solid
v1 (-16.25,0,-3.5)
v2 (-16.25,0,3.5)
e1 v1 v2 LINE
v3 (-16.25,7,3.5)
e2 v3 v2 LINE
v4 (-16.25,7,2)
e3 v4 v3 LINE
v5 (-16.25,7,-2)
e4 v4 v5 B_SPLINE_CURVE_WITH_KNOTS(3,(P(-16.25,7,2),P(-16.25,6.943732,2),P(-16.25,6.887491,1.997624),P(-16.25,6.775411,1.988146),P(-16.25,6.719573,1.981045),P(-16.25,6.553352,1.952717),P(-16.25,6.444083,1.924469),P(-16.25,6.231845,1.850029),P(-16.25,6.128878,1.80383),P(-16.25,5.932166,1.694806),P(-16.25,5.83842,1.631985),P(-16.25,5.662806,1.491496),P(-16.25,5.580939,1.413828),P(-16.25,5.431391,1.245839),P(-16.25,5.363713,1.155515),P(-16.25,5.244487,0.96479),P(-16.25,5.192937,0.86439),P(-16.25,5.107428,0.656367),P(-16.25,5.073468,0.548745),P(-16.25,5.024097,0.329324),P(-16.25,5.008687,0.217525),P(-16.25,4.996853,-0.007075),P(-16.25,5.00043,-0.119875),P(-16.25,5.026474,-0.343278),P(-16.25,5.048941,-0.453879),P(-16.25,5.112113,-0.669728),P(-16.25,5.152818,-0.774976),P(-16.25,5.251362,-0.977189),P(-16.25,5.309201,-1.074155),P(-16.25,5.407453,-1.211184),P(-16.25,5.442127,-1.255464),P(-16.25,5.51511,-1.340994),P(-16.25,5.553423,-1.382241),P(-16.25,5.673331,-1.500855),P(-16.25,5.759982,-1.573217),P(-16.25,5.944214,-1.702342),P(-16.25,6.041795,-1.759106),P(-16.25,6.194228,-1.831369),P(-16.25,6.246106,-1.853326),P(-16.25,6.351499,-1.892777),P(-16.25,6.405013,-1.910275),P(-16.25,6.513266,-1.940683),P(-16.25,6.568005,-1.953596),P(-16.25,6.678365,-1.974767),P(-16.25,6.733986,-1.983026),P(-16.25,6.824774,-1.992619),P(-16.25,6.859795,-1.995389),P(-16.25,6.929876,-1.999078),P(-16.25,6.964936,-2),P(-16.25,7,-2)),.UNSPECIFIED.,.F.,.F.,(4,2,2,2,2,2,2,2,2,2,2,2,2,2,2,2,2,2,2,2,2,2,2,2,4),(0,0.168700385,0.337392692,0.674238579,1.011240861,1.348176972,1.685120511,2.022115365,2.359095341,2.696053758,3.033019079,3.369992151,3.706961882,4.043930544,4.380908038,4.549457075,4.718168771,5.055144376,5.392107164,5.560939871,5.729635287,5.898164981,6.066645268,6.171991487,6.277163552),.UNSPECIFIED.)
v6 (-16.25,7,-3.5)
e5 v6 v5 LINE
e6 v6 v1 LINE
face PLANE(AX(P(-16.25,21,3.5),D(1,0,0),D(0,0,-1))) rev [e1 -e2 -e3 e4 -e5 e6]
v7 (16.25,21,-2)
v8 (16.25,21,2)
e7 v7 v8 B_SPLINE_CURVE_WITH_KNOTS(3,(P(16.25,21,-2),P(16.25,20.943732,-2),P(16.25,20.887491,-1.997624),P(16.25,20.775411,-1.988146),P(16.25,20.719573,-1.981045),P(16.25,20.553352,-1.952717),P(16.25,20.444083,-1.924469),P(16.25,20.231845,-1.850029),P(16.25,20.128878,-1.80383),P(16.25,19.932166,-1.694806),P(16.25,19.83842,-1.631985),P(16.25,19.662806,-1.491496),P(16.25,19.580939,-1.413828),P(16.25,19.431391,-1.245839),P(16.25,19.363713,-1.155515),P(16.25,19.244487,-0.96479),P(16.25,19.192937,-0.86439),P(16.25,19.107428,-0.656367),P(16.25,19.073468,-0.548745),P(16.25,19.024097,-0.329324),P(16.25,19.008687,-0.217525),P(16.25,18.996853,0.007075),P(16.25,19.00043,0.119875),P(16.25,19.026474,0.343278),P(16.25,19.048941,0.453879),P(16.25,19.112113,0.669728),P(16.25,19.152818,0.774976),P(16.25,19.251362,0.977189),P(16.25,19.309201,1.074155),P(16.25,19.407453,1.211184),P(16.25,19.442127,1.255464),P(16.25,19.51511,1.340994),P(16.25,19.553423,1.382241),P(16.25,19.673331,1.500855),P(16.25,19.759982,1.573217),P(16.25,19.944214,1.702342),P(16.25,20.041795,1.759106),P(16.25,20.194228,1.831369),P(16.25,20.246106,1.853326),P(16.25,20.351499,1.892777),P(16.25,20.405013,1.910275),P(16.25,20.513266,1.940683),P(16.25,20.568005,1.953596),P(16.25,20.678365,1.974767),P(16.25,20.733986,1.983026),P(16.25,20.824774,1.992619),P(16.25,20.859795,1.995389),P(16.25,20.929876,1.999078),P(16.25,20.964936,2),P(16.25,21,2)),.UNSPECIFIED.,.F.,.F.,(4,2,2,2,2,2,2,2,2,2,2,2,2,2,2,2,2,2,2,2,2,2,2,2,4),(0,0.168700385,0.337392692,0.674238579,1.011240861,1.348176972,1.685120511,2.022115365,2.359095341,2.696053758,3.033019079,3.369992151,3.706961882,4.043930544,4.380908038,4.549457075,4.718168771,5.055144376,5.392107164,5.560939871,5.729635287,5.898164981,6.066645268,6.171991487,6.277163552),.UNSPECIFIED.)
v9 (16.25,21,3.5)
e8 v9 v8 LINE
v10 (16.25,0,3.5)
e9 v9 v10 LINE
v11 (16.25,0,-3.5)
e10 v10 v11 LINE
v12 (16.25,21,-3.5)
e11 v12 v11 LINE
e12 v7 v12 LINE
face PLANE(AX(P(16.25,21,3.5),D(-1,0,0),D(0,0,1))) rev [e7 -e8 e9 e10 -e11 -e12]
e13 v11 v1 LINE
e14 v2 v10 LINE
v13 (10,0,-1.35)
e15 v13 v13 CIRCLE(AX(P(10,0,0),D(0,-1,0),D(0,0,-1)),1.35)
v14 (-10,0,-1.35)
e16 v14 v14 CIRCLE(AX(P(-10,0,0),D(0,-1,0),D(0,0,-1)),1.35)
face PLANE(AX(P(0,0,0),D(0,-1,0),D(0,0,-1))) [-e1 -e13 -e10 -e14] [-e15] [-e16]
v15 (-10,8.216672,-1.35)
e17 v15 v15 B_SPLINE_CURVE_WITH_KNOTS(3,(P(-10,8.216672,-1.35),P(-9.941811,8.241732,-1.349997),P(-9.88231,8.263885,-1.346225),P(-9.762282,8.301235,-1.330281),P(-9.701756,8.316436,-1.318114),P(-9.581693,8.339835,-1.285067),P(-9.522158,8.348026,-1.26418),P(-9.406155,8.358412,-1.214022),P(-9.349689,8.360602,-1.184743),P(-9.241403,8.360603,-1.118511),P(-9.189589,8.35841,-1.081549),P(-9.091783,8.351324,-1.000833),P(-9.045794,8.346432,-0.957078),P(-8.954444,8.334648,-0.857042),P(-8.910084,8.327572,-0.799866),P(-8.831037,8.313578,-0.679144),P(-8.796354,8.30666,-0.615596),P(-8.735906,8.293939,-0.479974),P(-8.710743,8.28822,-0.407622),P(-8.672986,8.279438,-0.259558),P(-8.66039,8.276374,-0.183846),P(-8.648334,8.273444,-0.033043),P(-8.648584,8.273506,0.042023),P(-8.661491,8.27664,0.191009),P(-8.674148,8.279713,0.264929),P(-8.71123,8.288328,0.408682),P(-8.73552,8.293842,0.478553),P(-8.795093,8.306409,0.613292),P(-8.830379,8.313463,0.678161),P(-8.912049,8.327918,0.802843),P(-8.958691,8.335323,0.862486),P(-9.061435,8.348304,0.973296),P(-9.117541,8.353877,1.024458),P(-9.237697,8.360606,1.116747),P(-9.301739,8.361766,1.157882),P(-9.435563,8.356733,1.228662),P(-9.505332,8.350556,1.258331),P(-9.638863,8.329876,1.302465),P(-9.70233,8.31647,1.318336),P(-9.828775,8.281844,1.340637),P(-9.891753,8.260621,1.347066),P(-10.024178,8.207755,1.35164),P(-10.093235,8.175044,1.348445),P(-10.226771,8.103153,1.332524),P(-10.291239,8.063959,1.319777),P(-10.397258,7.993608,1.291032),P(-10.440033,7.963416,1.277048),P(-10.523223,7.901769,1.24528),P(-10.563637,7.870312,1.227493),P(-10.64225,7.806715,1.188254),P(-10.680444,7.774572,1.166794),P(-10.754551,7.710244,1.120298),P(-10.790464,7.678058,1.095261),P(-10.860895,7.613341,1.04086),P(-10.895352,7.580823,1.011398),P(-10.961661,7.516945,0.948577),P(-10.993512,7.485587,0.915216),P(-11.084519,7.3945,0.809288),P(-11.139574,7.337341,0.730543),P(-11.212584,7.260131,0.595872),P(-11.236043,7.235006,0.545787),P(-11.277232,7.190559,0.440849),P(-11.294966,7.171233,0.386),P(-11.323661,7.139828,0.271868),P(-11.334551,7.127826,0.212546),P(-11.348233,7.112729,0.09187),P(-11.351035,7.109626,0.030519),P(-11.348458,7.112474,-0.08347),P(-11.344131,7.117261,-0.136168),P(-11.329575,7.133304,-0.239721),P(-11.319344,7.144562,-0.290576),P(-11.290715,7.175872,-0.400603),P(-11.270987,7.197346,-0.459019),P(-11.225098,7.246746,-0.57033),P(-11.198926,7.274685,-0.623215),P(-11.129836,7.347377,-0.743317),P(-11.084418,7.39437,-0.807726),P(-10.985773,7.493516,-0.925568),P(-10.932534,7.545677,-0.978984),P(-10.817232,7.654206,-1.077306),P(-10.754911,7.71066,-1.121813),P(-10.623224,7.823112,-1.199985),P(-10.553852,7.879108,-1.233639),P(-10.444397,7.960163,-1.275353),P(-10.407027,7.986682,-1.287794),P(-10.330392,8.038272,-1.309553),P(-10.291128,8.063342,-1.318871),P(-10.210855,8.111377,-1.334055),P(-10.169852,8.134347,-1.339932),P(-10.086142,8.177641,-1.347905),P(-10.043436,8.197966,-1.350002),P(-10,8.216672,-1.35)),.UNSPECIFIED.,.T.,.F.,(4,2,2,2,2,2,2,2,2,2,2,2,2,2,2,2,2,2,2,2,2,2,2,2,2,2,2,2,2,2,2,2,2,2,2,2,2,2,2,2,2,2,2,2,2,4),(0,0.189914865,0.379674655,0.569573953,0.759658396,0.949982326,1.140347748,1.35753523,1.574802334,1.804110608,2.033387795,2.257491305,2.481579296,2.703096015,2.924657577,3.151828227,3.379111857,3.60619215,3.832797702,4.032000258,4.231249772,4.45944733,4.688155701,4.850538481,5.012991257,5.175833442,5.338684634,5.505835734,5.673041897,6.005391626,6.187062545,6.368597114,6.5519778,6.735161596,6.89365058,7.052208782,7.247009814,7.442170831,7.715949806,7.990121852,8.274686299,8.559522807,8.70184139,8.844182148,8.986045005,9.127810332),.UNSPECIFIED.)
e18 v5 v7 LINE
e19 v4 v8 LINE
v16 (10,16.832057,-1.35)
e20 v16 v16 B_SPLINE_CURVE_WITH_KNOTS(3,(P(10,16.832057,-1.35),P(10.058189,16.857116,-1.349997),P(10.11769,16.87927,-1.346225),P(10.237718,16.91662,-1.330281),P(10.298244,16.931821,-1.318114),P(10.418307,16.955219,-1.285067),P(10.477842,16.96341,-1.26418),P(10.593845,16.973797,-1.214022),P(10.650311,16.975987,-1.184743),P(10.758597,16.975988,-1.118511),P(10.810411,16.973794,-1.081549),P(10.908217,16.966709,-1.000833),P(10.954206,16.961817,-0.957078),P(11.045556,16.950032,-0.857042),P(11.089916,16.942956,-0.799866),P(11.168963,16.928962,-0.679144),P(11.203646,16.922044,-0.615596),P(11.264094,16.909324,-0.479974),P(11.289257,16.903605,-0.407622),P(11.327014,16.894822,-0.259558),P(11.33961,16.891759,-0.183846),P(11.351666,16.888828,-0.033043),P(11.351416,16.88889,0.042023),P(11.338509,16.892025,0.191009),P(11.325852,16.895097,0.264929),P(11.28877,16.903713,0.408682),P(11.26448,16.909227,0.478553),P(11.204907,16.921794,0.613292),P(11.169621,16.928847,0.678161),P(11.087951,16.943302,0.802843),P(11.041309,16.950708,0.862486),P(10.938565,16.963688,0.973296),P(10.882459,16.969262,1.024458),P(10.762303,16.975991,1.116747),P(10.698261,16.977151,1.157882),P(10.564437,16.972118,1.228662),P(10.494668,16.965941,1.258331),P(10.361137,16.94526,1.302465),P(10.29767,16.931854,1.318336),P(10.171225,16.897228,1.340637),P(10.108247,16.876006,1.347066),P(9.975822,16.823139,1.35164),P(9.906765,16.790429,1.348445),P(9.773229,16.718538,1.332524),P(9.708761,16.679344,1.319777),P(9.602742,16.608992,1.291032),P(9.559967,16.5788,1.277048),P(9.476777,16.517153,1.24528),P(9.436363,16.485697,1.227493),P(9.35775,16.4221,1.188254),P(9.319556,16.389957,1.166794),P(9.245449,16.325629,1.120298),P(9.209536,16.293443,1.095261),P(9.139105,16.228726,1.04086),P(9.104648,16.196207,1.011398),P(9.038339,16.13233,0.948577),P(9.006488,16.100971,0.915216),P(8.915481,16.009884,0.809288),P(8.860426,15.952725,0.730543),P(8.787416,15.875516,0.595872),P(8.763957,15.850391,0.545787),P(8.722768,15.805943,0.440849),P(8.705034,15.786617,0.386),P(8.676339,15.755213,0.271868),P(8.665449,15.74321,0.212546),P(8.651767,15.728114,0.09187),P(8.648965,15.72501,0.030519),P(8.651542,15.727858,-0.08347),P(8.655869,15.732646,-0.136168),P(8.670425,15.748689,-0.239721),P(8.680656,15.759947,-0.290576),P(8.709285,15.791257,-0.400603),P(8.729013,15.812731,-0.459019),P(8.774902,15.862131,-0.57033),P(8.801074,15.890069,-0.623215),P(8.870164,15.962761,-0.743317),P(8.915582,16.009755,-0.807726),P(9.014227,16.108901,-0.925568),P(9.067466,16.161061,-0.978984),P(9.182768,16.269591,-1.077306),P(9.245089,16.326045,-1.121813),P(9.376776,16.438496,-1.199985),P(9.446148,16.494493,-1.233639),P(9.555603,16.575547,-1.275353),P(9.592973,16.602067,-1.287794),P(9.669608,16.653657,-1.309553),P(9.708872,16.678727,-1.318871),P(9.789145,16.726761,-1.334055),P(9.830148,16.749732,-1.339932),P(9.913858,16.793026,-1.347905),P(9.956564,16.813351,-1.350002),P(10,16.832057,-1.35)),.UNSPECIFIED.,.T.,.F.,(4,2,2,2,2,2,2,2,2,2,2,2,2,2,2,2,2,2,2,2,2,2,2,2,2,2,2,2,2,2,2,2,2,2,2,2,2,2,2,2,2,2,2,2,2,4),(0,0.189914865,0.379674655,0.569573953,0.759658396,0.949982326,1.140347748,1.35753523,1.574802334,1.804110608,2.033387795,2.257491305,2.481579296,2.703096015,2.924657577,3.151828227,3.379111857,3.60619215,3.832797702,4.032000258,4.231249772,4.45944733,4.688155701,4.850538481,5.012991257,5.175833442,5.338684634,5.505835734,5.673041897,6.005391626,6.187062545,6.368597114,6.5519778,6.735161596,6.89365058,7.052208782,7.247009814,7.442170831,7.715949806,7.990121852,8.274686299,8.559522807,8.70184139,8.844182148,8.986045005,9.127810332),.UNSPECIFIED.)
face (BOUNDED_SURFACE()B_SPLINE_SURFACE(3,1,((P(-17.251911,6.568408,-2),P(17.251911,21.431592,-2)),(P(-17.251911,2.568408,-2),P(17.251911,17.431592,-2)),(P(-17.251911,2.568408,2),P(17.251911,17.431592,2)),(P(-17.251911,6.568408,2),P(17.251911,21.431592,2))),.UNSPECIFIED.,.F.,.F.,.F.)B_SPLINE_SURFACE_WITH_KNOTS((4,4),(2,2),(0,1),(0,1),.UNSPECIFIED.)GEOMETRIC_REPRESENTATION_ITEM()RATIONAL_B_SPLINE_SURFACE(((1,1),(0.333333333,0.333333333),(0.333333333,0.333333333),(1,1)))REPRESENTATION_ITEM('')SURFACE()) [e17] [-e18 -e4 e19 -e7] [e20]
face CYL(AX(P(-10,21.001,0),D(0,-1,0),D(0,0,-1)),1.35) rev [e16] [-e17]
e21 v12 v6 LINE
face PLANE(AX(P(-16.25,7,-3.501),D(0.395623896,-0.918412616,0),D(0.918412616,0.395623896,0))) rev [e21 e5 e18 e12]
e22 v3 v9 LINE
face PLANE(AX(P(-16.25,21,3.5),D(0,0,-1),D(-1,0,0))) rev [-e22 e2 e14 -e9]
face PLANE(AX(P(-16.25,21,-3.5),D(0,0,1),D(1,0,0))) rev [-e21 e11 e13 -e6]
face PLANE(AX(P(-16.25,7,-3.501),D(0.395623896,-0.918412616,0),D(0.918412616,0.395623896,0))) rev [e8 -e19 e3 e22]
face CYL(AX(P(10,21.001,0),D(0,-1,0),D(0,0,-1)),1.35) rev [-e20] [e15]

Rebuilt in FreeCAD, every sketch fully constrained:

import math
import FreeCAD as App
import Part
import Sketcher
from FreeCAD import Vector

doc = App.newDocument("Part")
params = doc.addObject("Spreadsheet::Sheet", "Params")
for row, (alias, value) in enumerate([
    ("sketch1_height", "7 mm"),
    ("sketch1_width", "32.5 mm"),
    ("pad1_length", "21 mm"),
    ("sketch2_diameter", "2.7 mm"),
    ("sketch3_diameter", "2.7 mm"),
    ("sketch4_height", "14 mm"),
    ("sketch4_width", "32.5 mm"),
    ("sketch5_radius", "2 mm"),
], start=1):
    params.set(f"A{row}", alias)
    params.set(f"B{row}", "=" + value)
    params.setAlias(f"B{row}", alias)

body = doc.addObject("PartDesign::Body", "Body")

# Sketch on XZ plane
sketch1 = body.newObject("Sketcher::SketchObject", "Sketch")
sketch1.AttachmentSupport = (doc.getObject("XZ_Plane"), [""])
sketch1.MapMode = "FlatFace"
sketch1.addGeometry([
    Part.LineSegment(Vector(-16, -4, 0), Vector(-16, 4, 0)),
    Part.LineSegment(Vector(-16, 4, 0), Vector(16, 4, 0)),
    Part.LineSegment(Vector(16, 4, 0), Vector(16, -4, 0)),
    Part.LineSegment(Vector(16, -4, 0), Vector(-16, -4, 0)),
], False)
sketch1.addConstraint([
    Sketcher.Constraint("Coincident", 0, 2, 1, 1),
    Sketcher.Constraint("Coincident", 1, 2, 2, 1),
    Sketcher.Constraint("Coincident", 2, 2, 3, 1),
    Sketcher.Constraint("Coincident", 3, 2, 0, 1),
    Sketcher.Constraint("Vertical", 0),
    Sketcher.Constraint("Horizontal", 1),
    Sketcher.Constraint("Vertical", 2),
    Sketcher.Constraint("Horizontal", 3),
    Sketcher.Constraint("Symmetric", 0, 2, 2, 2, -1, 1),
    Sketcher.Constraint("DistanceY", 0, 1, 0, 2, 7.0),
    Sketcher.Constraint("DistanceX", 1, 1, 1, 2, 32.5),
])
sketch1.setExpression("Constraints[9]", "Params.sketch1_height")
sketch1.setExpression("Constraints[10]", "Params.sketch1_width")
pad1 = body.newObject("PartDesign::Pad", "Pad")
pad1.Profile = sketch1
pad1.setExpression("Length", "Params.pad1_length")
pad1.Reversed = True

# Sketch on XZ plane
sketch2 = body.newObject("Sketcher::SketchObject", "Sketch001")
sketch2.AttachmentSupport = (doc.getObject("XZ_Plane"), [""])
sketch2.MapMode = "FlatFace"
sketch2.addGeometry(Part.Circle(Vector(-10, 0, 0), Vector(0, 0, 1), 1.4), False)
sketch2.addConstraint([
    Sketcher.Constraint("PointOnObject", 0, 3, -1),
    Sketcher.Constraint("Diameter", 0, 2.7),
    Sketcher.Constraint("DistanceX", 0, 3, -1, 1, 10.0),
])
sketch2.setExpression("Constraints[1]", "Params.sketch2_diameter")
pocket1 = body.newObject("PartDesign::Pocket", "Pocket")
pocket1.Profile = sketch2
pocket1.Type = "UpToFirst"

# Sketch on XZ plane
sketch3 = body.newObject("Sketcher::SketchObject", "Sketch002")
sketch3.AttachmentSupport = (doc.getObject("XZ_Plane"), [""])
sketch3.MapMode = "FlatFace"
sketch3.addGeometry(Part.Circle(Vector(10, 0, 0), Vector(0, 0, 1), 1.4), False)
sketch3.addConstraint([
    Sketcher.Constraint("PointOnObject", 0, 3, -1),
    Sketcher.Constraint("Diameter", 0, 2.7),
    Sketcher.Constraint("DistanceX", -1, 1, 0, 3, 10.0),
])
sketch3.setExpression("Constraints[1]", "Params.sketch3_diameter")
pocket2 = body.newObject("PartDesign::Pocket", "Pocket001")
pocket2.Profile = sketch3
pocket2.Type = "UpToFirst"

# Sketch on XY plane
sketch4 = body.newObject("Sketcher::SketchObject", "Sketch003")
sketch4.AttachmentSupport = (doc.getObject("XY_Plane"), [""])
sketch4.MapMode = "FlatFace"
sketch4.AttachmentOffset = App.Placement(Vector(0, 0, 3.5), App.Rotation())
sketch4.addGeometry([
    Part.LineSegment(Vector(-16, 21, 0), Vector(-16, 7, 0)),
    Part.LineSegment(Vector(-16, 7, 0), Vector(16, 21, 0)),
    Part.LineSegment(Vector(16, 21, 0), Vector(-16, 21, 0)),
], False)
sketch4.addConstraint([
    Sketcher.Constraint("Coincident", 0, 2, 1, 1),
    Sketcher.Constraint("Coincident", 1, 2, 2, 1),
    Sketcher.Constraint("Coincident", 2, 2, 0, 1),
    Sketcher.Constraint("Vertical", 0),
    Sketcher.Constraint("Horizontal", 2),
    Sketcher.Constraint("DistanceY", 0, 2, 0, 1, 14.0),
    Sketcher.Constraint("DistanceX", 2, 2, 2, 1, 32.5),
    Sketcher.Constraint("DistanceY", -1, 1, 0, 2, 7.0),
    Sketcher.Constraint("DistanceX", 0, 2, -1, 1, 16.25),
])
sketch4.setExpression("Constraints[5]", "Params.sketch4_height")
sketch4.setExpression("Constraints[6]", "Params.sketch4_width")
pocket3 = body.newObject("PartDesign::Pocket", "Pocket002")
pocket3.Profile = sketch4
pocket3.Type = "UpToFirst"

# Sketch on YZ plane
sketch5 = body.newObject("Sketcher::SketchObject", "Sketch004")
sketch5.AttachmentSupport = (doc.getObject("YZ_Plane"), [""])
sketch5.MapMode = "FlatFace"
sketch5.AttachmentOffset = App.Placement(Vector(0, 0, -16.25), App.Rotation())
sketch5.addGeometry([
    Part.LineSegment(Vector(7, 2, 0), Vector(7, -2, 0)),
    Part.ArcOfCircle(Part.Circle(Vector(7, 0, 0), Vector(0, 0, 1), 2), math.radians(90), math.radians(270)),
], False)
sketch5.addConstraint([
    Sketcher.Constraint("Coincident", 0, 1, 1, 1),
    Sketcher.Constraint("Coincident", 1, 2, 0, 2),
    Sketcher.Constraint("Vertical", 0),
    Sketcher.Constraint("PointOnObject", 1, 3, -1),
    Sketcher.Constraint("Vertical", 1, 3, 0, 1),
    Sketcher.Constraint("Radius", 1, 2.0),
    Sketcher.Constraint("DistanceX", -1, 1, 1, 3, 7.0),
])
sketch5.setExpression("Constraints[5]", "Params.sketch5_radius")

# Sketch on an angled plane
sketch6 = body.newObject("Sketcher::SketchObject", "Sketch005")
sketch6.Placement = App.Placement(Vector(-5.086844, 11.808744, 0), App.Rotation(Vector(0.918412616, 0.395623896, 0), Vector(0, 0, 1), Vector(0.395623896, -0.918412616, 0), "ZXY"))
sketch6.addGeometry(Part.LineSegment(Vector(-12, 0, 0), Vector(23, 0, 0)), False)
sketch6.addConstraint([
    Sketcher.Constraint("Horizontal", 0),
    Sketcher.Constraint("PointOnObject", 0, 1, -1),
    Sketcher.Constraint("DistanceX", 0, 1, 0, 2, 35.387145),
    Sketcher.Constraint("DistanceX", 0, 1, -1, 1, 12.154838),
])
doc.recompute()

subtractivepipe = body.newObject("PartDesign::SubtractivePipe", "SubtractivePipe")
subtractivepipe.Profile = sketch5
subtractivepipe.Spine = (sketch6, ["Edge1"])

doc.recompute()
